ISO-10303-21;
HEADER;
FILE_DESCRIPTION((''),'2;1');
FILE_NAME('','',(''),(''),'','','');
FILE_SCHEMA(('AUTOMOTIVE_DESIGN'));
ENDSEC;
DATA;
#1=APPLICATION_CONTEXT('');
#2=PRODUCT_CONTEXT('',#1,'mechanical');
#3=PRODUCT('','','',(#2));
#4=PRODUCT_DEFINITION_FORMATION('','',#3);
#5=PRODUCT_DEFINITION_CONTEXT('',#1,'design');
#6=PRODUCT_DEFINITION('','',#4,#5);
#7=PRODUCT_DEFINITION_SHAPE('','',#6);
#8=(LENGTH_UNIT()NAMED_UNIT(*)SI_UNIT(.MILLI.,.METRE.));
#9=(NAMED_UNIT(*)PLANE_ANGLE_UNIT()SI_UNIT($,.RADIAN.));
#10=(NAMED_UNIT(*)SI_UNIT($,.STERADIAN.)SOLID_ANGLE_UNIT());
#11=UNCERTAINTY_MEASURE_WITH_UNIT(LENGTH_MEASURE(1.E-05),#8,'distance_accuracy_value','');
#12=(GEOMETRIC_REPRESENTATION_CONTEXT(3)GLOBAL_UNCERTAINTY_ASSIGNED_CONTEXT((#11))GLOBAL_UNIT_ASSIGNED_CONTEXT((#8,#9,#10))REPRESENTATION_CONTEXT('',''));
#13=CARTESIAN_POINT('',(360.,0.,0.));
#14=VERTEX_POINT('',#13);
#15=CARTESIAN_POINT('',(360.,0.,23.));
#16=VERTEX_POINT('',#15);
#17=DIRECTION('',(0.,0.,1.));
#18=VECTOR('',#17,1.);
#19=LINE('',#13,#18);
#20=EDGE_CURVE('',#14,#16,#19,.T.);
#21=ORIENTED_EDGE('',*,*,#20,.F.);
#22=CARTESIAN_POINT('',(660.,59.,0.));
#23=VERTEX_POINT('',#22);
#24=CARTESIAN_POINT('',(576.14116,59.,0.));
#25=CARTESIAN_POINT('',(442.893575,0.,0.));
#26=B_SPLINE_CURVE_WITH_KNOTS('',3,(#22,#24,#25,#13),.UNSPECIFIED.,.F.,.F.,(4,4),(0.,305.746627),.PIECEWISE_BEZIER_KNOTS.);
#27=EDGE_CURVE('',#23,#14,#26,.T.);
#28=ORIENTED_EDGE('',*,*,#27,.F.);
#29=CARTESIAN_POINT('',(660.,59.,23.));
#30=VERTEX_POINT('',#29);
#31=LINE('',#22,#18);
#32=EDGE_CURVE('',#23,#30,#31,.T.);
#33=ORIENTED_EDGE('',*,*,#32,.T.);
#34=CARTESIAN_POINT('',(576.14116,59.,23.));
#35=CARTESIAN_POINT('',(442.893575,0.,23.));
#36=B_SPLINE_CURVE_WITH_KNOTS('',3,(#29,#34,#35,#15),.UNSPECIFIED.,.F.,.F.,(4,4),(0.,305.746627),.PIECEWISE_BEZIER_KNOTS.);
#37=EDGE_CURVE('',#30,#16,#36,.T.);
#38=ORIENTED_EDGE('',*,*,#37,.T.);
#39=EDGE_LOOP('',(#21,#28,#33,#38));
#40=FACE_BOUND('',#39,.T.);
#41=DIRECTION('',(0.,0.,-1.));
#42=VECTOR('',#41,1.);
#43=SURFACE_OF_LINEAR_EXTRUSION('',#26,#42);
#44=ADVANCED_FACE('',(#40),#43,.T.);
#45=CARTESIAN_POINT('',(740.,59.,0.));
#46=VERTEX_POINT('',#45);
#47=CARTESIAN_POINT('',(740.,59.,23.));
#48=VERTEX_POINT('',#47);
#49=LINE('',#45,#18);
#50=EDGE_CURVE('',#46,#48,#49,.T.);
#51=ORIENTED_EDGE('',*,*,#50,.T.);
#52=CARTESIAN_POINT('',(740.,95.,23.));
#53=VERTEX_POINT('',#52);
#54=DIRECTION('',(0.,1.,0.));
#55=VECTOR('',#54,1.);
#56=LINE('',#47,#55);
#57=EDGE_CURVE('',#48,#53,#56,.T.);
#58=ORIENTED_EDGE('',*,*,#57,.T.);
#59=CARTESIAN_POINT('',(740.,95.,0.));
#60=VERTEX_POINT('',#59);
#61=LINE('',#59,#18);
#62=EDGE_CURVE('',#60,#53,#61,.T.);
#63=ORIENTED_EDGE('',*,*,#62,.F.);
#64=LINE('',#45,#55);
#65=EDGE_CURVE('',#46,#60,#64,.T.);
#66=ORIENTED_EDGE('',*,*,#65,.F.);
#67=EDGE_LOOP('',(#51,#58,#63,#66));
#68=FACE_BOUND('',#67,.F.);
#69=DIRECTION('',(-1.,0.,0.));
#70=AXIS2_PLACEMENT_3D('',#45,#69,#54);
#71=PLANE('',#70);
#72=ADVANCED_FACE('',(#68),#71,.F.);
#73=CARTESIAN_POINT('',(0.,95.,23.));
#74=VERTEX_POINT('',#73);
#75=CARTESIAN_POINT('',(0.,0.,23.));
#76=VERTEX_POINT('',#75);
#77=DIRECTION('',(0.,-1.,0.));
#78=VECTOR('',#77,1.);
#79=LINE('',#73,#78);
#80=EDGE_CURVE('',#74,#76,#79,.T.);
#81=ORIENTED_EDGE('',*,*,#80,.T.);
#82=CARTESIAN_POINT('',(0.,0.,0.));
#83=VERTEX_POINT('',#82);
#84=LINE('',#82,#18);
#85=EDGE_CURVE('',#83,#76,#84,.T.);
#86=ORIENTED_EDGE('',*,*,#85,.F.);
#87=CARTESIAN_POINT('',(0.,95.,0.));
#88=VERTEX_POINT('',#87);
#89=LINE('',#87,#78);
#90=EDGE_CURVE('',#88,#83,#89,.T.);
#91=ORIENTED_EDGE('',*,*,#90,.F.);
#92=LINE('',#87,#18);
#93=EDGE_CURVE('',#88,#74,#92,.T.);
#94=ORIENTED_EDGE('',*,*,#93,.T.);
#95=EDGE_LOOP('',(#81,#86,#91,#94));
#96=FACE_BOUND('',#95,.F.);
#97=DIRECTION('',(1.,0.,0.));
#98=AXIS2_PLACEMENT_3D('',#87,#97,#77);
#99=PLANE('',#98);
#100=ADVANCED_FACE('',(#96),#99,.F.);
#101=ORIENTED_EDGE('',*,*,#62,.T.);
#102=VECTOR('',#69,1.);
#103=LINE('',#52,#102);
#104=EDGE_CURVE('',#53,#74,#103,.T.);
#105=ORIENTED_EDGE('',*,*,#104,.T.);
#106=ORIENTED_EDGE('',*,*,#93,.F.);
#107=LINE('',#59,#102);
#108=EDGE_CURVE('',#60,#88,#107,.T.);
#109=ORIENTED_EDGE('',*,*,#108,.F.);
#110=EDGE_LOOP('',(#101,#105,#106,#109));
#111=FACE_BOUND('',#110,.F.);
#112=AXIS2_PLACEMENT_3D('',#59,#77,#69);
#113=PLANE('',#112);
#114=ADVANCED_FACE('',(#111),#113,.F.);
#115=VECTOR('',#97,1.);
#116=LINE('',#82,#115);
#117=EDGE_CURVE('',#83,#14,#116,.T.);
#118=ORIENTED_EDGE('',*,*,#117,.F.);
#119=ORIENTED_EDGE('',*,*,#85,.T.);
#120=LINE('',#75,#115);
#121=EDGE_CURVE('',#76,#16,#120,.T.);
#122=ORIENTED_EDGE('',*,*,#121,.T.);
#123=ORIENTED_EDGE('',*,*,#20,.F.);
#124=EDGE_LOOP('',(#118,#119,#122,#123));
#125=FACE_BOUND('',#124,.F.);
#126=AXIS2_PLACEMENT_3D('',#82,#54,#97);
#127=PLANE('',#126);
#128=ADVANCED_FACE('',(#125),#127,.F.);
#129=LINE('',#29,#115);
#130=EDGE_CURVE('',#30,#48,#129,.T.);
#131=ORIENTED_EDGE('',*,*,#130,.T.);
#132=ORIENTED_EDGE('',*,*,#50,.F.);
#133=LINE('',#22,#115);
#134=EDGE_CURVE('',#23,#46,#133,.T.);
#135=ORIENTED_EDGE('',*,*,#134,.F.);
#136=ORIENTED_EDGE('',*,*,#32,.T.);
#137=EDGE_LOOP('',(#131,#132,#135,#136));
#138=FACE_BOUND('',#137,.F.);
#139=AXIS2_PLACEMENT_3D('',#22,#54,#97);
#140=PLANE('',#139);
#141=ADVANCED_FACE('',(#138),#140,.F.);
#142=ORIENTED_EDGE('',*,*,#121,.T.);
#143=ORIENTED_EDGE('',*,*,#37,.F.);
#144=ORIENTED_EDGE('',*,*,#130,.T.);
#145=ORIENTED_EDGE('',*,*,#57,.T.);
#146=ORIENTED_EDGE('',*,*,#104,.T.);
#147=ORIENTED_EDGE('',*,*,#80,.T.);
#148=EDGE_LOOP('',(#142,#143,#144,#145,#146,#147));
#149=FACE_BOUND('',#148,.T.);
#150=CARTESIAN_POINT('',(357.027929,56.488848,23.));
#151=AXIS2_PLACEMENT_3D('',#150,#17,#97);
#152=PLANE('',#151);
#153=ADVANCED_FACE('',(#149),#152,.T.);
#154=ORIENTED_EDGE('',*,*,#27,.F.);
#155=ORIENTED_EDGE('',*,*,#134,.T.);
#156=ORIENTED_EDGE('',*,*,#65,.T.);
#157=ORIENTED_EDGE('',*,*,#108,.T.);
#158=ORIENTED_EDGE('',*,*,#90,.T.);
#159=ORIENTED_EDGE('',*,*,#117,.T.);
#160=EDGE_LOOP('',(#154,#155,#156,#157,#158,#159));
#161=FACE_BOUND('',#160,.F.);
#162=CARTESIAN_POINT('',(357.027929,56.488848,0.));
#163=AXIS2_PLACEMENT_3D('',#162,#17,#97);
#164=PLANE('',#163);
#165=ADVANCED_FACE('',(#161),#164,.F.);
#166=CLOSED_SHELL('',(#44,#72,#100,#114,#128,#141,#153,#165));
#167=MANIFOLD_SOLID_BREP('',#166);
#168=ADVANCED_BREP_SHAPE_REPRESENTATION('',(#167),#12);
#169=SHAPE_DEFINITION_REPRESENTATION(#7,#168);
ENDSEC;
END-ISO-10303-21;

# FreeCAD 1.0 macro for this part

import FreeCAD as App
import Part
import Sketcher
from FreeCAD import Vector

doc = App.newDocument("Part")
body = doc.addObject("PartDesign::Body", "Body")

# Sketch on XY plane
sketch1 = doc.addObject("Sketcher::SketchObject", "Sketch")
body.addObject(sketch1)
sketch1.AttachmentSupport = (doc.XY_Plane, [""])
sketch1.MapMode = "FlatFace"
sketch1.addGeometry([
    Part.LineSegment(Vector(740, 95, 0), Vector(0, 95, 0)),  # 0
    Part.LineSegment(Vector(0, 95, 0), Vector(0, 0, 0)),  # 1
    Part.LineSegment(Vector(0, 0, 0), Vector(360, 0, 0)),  # 2
    Part.BSplineCurve([Vector(660, 59, 0), Vector(576.14116, 59, 0), Vector(442.893575, 0, 0), Vector(360, 0, 0)], [4, 4], [0, 305.746627], False, 3, [1, 1, 1, 1], False),  # 3
    Part.LineSegment(Vector(660, 59, 0), Vector(740, 59, 0)),  # 4
    Part.LineSegment(Vector(740, 59, 0), Vector(740, 95, 0)),  # 5
], False)
sketch1.addConstraint([
    Sketcher.Constraint("Block", 3),
    Sketcher.Constraint("Coincident", 0, 2, 1, 1),
    Sketcher.Constraint("Coincident", 1, 2, 2, 1),
    Sketcher.Constraint("Coincident", 2, 2, 3, 2),
    Sketcher.Constraint("Coincident", 3, 1, 4, 1),
    Sketcher.Constraint("Coincident", 4, 2, 5, 1),
    Sketcher.Constraint("Coincident", 5, 2, 0, 1),
    Sketcher.Constraint("Horizontal", 0),
    Sketcher.Constraint("Vertical", 1),
    Sketcher.Constraint("Horizontal", 2),
    Sketcher.Constraint("Horizontal", 4),
    Sketcher.Constraint("Vertical", 5),
    Sketcher.Constraint("PointOnObject", 0, 2, -2),
    Sketcher.Constraint("DistanceX", 0, 2, 0, 1, 740.0),
    Sketcher.Constraint("DistanceY", 1, 2, 1, 1, 95.0),
])
pad1 = doc.addObject("PartDesign::Pad", "Pad")
body.addObject(pad1)
pad1.Profile = sketch1
pad1.Length = 23

doc.recompute()
